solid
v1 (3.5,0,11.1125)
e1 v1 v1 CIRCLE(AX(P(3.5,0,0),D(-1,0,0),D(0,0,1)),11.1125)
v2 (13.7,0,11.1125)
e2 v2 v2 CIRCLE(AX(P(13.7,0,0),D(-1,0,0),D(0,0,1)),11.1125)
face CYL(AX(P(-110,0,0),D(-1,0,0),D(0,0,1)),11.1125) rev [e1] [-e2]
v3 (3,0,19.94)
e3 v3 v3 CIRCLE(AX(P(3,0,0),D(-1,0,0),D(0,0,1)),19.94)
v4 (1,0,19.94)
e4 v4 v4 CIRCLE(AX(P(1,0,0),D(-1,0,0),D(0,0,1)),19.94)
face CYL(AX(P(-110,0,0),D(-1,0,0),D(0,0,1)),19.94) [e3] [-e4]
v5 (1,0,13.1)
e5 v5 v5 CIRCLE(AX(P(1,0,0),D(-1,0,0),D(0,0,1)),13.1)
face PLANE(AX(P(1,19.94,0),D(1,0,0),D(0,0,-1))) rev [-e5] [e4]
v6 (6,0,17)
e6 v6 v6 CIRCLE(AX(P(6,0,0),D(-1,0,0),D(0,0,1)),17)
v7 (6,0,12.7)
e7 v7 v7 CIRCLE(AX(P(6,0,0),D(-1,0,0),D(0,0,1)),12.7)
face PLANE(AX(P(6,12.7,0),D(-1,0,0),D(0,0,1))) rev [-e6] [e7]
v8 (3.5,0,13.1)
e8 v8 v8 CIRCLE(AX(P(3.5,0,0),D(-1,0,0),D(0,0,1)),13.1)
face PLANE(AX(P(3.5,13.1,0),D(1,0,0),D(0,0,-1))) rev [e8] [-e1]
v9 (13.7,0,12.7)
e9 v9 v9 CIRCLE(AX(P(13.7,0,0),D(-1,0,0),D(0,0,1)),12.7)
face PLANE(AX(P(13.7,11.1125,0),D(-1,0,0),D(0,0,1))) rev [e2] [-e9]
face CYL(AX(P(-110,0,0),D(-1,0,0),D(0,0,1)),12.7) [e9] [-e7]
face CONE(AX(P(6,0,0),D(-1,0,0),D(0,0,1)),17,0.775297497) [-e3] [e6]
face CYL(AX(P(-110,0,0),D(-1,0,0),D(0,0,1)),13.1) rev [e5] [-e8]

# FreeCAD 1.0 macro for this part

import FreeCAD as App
import Part
import Sketcher

V = App.Vector


def add_polygon(sketch, points):
    """Adds a closed chain of lines whose ends are joined by coincident constraints."""
    first, n = sketch.GeometryCount, len(points)
    for a, b in zip(points, points[1:] + points[:1]):
        sketch.addGeometry(Part.LineSegment(App.Vector(*a, 0), App.Vector(*b, 0)), False)
    for i in range(n):
        sketch.addConstraint(Sketcher.Constraint("Coincident", first + i, 2, first + (i + 1) % n, 1))

doc = App.newDocument("Part")
body = doc.addObject("PartDesign::Body", "Body")

# Sketch on XY plane
sketch1 = doc.addObject("Sketcher::SketchObject", "Sketch")
body.addObject(sketch1)
sketch1.AttachmentSupport = (doc.XY_Plane, [""])
sketch1.MapMode = "FlatFace"
add_polygon(sketch1, [(3.5, 11.1125), (13.7, 11.1125), (13.7, 12.7), (6, 12.7), (6, 17), (3, 19.94), (1, 19.94), (1, 13.1), (3.5, 13.1)])  # lines 0-8
sketch1.addConstraint([
    Sketcher.Constraint("Horizontal", 0),
    Sketcher.Constraint("Vertical", 1),
    Sketcher.Constraint("Horizontal", 2),
    Sketcher.Constraint("Vertical", 3),
    Sketcher.Constraint("Horizontal", 5),
    Sketcher.Constraint("Vertical", 6),
    Sketcher.Constraint("Horizontal", 7),
    Sketcher.Constraint("Vertical", 8),
    Sketcher.Constraint("DistanceX", 5, 2, 5, 1, 2.0),
    Sketcher.Constraint("DistanceX", 0, 1, 0, 2, 10.2),
    Sketcher.Constraint("DistanceX", 2, 2, 2, 1, 7.7),
    Sketcher.Constraint("DistanceX", 7, 1, 7, 2, 2.5),
    Sketcher.Constraint("DistanceY", 3, 1, 3, 2, 4.3),
    Sketcher.Constraint("DistanceX", -1, 1, 2, 2, 6.0),
    Sketcher.Constraint("DistanceY", -1, 1, 3, 2, 17.0),
    Sketcher.Constraint("DistanceY", 6, 2, 6, 1, 6.84),
    Sketcher.Constraint("DistanceY", -1, 1, 6, 2, 13.1),
    Sketcher.Constraint("DistanceY", 1, 1, 1, 2, 1.5875),
])
revolution = doc.addObject("PartDesign::Revolution", "Revolution")
body.addObject(revolution)
revolution.Profile = sketch1
revolution.ReferenceAxis = (sketch1, ["H_Axis"])
revolution.Angle = 360

doc.recompute()
